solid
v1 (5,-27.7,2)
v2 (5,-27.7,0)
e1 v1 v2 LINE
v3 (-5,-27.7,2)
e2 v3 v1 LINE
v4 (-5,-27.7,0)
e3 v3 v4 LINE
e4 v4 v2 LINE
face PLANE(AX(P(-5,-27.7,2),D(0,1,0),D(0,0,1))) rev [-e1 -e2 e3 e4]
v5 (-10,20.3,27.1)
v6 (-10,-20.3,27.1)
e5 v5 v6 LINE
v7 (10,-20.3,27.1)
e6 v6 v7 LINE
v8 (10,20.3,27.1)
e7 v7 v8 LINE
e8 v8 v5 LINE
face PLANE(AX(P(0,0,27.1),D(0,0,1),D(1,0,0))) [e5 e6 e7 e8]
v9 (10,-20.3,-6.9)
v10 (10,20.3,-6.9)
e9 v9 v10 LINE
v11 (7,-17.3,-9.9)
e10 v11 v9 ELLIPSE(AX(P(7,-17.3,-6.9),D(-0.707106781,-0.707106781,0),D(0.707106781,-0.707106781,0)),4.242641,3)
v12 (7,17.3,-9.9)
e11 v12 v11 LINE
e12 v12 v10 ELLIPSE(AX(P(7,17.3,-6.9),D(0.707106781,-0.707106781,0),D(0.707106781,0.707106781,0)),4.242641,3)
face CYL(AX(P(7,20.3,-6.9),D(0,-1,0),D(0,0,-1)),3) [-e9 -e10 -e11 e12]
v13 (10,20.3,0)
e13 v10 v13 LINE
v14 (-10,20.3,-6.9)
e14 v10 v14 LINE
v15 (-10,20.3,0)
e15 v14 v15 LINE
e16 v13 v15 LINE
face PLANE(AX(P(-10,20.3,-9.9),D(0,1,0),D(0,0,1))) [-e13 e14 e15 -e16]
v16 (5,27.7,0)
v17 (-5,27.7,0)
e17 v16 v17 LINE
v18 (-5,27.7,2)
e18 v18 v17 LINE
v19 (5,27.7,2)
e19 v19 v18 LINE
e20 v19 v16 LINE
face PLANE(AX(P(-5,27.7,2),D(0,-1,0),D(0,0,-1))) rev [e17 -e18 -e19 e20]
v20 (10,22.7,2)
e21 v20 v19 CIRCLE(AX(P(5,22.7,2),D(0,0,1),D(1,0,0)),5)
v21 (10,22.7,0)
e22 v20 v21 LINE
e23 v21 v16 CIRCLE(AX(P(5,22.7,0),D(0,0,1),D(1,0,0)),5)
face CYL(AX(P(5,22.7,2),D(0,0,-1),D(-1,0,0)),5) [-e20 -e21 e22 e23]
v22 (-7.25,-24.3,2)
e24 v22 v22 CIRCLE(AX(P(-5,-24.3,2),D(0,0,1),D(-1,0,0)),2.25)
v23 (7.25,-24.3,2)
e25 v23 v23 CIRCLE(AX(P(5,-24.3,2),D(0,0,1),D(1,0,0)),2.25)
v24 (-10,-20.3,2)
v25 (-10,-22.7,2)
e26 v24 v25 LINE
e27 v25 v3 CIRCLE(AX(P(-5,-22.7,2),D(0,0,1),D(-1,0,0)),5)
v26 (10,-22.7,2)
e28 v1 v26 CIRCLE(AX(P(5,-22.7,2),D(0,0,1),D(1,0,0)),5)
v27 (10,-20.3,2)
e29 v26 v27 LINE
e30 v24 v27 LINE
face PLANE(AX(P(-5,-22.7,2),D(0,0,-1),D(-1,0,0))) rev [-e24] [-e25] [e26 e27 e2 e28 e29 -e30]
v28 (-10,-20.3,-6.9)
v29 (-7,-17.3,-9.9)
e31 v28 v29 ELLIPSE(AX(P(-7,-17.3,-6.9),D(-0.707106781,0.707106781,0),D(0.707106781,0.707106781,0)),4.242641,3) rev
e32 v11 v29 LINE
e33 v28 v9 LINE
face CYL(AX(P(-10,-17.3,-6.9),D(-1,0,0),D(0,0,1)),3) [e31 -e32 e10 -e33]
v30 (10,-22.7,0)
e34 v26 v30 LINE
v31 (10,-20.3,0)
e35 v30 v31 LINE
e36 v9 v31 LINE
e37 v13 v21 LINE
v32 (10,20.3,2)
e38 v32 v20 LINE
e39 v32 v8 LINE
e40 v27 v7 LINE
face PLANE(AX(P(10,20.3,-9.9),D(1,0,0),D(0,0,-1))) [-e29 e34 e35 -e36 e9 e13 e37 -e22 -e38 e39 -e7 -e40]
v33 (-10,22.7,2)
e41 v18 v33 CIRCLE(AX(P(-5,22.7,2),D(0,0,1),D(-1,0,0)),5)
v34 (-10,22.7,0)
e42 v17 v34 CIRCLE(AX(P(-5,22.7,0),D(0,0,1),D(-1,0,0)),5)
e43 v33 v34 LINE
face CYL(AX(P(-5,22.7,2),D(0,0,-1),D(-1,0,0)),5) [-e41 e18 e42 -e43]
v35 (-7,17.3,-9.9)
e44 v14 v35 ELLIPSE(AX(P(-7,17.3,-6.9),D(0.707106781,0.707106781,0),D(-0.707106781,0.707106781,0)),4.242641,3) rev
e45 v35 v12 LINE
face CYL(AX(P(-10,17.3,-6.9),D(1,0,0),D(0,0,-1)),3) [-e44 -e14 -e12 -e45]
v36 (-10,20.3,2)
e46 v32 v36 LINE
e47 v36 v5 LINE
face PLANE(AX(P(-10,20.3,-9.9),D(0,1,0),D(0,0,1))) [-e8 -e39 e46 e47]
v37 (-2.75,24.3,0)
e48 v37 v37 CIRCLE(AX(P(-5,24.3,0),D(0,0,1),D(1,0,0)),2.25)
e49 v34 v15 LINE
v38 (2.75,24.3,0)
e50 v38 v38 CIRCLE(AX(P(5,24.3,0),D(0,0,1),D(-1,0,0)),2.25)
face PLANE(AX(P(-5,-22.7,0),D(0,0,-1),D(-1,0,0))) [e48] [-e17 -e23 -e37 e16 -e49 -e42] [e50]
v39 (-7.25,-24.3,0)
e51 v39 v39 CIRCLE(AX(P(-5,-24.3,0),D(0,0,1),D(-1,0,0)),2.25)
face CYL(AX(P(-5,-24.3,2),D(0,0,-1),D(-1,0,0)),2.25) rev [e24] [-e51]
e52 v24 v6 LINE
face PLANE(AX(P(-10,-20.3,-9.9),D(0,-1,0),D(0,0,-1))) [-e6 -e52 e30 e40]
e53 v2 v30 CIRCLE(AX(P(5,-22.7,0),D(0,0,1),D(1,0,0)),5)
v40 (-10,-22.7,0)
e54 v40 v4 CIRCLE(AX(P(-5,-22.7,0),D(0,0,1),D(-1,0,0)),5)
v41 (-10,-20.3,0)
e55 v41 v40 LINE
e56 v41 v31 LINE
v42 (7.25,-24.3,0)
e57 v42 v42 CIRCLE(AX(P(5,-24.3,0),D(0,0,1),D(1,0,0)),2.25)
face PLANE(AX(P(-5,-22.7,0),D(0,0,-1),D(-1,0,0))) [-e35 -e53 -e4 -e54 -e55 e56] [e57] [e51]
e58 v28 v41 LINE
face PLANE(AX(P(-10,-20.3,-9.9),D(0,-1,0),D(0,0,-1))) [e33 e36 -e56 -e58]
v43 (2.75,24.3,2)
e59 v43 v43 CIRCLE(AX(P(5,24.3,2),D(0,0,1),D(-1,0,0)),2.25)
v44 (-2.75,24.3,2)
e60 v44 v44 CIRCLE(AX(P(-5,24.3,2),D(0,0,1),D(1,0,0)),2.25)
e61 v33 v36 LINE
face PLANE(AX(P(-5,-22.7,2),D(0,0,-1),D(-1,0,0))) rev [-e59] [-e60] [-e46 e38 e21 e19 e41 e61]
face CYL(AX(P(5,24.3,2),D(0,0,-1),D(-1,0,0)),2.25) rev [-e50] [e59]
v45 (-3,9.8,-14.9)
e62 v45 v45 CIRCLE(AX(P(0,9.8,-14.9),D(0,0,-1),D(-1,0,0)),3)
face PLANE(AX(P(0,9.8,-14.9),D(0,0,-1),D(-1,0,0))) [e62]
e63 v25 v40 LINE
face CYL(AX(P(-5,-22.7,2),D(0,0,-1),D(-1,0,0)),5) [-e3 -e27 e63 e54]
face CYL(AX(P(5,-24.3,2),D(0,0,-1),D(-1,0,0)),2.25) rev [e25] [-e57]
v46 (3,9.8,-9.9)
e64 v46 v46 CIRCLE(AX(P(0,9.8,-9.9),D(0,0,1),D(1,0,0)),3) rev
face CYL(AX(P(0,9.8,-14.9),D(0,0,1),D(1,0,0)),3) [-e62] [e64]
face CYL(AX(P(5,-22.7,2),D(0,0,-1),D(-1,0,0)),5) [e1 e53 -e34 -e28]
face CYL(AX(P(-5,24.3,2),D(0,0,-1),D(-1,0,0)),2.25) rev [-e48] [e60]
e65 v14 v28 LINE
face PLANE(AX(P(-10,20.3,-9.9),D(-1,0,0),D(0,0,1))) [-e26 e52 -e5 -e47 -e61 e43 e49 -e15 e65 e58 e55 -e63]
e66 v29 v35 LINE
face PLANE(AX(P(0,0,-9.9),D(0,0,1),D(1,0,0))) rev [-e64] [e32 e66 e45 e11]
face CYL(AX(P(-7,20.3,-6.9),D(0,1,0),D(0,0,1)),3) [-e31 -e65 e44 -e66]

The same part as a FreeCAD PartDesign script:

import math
import FreeCAD as App
import Part
import Sketcher

V = App.Vector


def edges_at(feature, points):
    """Names of the edges that pass closest to the given points."""
    edges = feature.Shape.Edges
    near = lambda p: min(range(len(edges)), key=lambda i: edges[i].distToShape(Part.Vertex(*p))[0])
    return sorted({f"Edge{near(p) + 1}" for p in points})


def add_polygon(sketch, points):
    """Adds a closed chain of lines whose ends are joined by coincident constraints."""
    first, n = sketch.GeometryCount, len(points)
    for a, b in zip(points, points[1:] + points[:1]):
        sketch.addGeometry(Part.LineSegment(App.Vector(*a, 0), App.Vector(*b, 0)), False)
    for i in range(n):
        sketch.addConstraint(Sketcher.Constraint("Coincident", first + i, 2, first + (i + 1) % n, 1))

doc = App.newDocument("Part")
body = doc.addObject("PartDesign::Body", "Body")

# Sketch on XY plane
sketch1 = doc.addObject("Sketcher::SketchObject", "Sketch")
body.addObject(sketch1)
sketch1.AttachmentSupport = (doc.XY_Plane, [""])
sketch1.MapMode = "FlatFace"
add_polygon(sketch1, [(-10, 20.3), (-10, -20.3), (10, -20.3), (10, 20.3)])  # lines 0-3
sketch1.addConstraint([
    Sketcher.Constraint("Vertical", 0),
    Sketcher.Constraint("Horizontal", 1),
    Sketcher.Constraint("Vertical", 2),
    Sketcher.Constraint("Horizontal", 3),
    Sketcher.Constraint("Symmetric", 0, 2, 2, 2, -1, 1),
    Sketcher.Constraint("DistanceX", 1, 1, 1, 2, 20.0),
    Sketcher.Constraint("DistanceY", 0, 2, 0, 1, 40.6),
])
pad1 = doc.addObject("PartDesign::Pad", "Pad")
body.addObject(pad1)
pad1.Profile = sketch1
pad1.Type = "TwoLengths"
pad1.Length = 27.1
pad1.Length2 = 9.9

# Sketch on XY plane
sketch2 = doc.addObject("Sketcher::SketchObject", "Sketch001")
body.addObject(sketch2)
sketch2.AttachmentSupport = (doc.XY_Plane, [""])
sketch2.MapMode = "FlatFace"
sketch2.addGeometry([
    Part.LineSegment(V(-5, -27.7, 0), V(5, -27.7, 0)),  # 0
    Part.ArcOfCircle(Part.Circle(V(5, -22.7, 0), V(0, 0, 1), 5), math.radians(-90), math.radians(0)),  # 1
    Part.LineSegment(V(10, -22.7, 0), V(10, 22.7, 0)),  # 2
    Part.ArcOfCircle(Part.Circle(V(5, 22.7, 0), V(0, 0, 1), 5), math.radians(0), math.radians(90)),  # 3
    Part.LineSegment(V(5, 27.7, 0), V(-5, 27.7, 0)),  # 4
    Part.ArcOfCircle(Part.Circle(V(-5, 22.7, 0), V(0, 0, 1), 5), math.radians(90), math.radians(180)),  # 5
    Part.LineSegment(V(-10, 22.7, 0), V(-10, -22.7, 0)),  # 6
    Part.ArcOfCircle(Part.Circle(V(-5, -22.7, 0), V(0, 0, 1), 5), math.radians(180), math.radians(270)),  # 7
    Part.Circle(V(-5, -24.3, 0), V(0, 0, 1), 2.25),  # 8
    Part.Circle(V(5, -24.3, 0), V(0, 0, 1), 2.25),  # 9
    Part.Circle(V(-5, 24.3, 0), V(0, 0, 1), 2.25),  # 10
    Part.Circle(V(0, 9.8, 0), V(0, 0, 1), 2.836463),  # 11
    Part.Circle(V(5, 24.3, 0), V(0, 0, 1), 2.25),  # 12
], False)
sketch2.addConstraint([
    Sketcher.Constraint("Tangent", 0, 2, 1, 1),
    Sketcher.Constraint("Tangent", 1, 2, 2, 1),
    Sketcher.Constraint("Tangent", 2, 2, 3, 1),
    Sketcher.Constraint("Tangent", 3, 2, 4, 1),
    Sketcher.Constraint("Tangent", 4, 2, 5, 1),
    Sketcher.Constraint("Tangent", 5, 2, 6, 1),
    Sketcher.Constraint("Tangent", 6, 2, 7, 1),
    Sketcher.Constraint("Tangent", 7, 2, 0, 1),
    Sketcher.Constraint("Horizontal", 0),
    Sketcher.Constraint("Vertical", 2),
    Sketcher.Constraint("Horizontal", 4),
    Sketcher.Constraint("Vertical", 6),
    Sketcher.Constraint("Equal", 1, 3),
    Sketcher.Constraint("Equal", 3, 5),
    Sketcher.Constraint("Equal", 5, 7),
    Sketcher.Constraint("Equal", 8, 9),
    Sketcher.Constraint("Equal", 9, 10),
    Sketcher.Constraint("Equal", 10, 12),
    Sketcher.Constraint("Symmetric", 1, 3, 5, 3, -1, 1),
    Sketcher.Constraint("Symmetric", 9, 3, 10, 3, -1, 1),
    Sketcher.Constraint("Symmetric", 8, 3, 12, 3, -1, 1),
    Sketcher.Constraint("Symmetric", 8, 3, 9, 3, -2),
    Sketcher.Constraint("PointOnObject", 11, 3, -2),
    Sketcher.Constraint("Vertical", 7, 3, 8, 3),
    Sketcher.Constraint("Radius", 1, 5.0),
    Sketcher.Constraint("Diameter", 8, 4.5),
    Sketcher.Constraint("DistanceX", 0, 1, 0, 2, 10.0),
    Sketcher.Constraint("DistanceY", 2, 1, 2, 2, 45.4),
    Sketcher.Constraint("DistanceY", 8, 3, 5, 3, 47.0),
    Sketcher.Constraint("DistanceY", -1, 1, 11, 3, 9.8),
    Sketcher.Constraint("Diameter", 11, 5.672927),
])
pad2 = doc.addObject("PartDesign::Pad", "Pad001")
body.addObject(pad2)
pad2.Profile = sketch2
pad2.Length = 2
doc.recompute()

fillet = doc.addObject("PartDesign::Fillet", "Fillet")
body.addObject(fillet)
fillet.Base = (pad2, edges_at(pad2, [
    (10, 0, -9.9),
    (0, 20.3, -9.9),
    (-10, 0, -9.9),
    (0, -20.3, -9.9),
]))
fillet.Radius = 3

# Sketch on XY plane
sketch3 = doc.addObject("Sketcher::SketchObject", "Sketch002")
body.addObject(sketch3)
sketch3.AttachmentSupport = (doc.XY_Plane, [""])
sketch3.MapMode = "FlatFace"
sketch3.AttachmentOffset = App.Placement(V(0, 0, -9.9), App.Rotation())
sketch3.addGeometry(Part.Circle(V(0, 9.8, 0), V(0, 0, 1), 3), False)
sketch3.addConstraint([
    Sketcher.Constraint("PointOnObject", 0, 3, -2),
    Sketcher.Constraint("Diameter", 0, 6.0),
    Sketcher.Constraint("DistanceY", -1, 1, 0, 3, 9.8),
])
pad3 = doc.addObject("PartDesign::Pad", "Pad002")
body.addObject(pad3)
pad3.Profile = sketch3
pad3.Length = 5
pad3.Reversed = True

doc.recompute()
